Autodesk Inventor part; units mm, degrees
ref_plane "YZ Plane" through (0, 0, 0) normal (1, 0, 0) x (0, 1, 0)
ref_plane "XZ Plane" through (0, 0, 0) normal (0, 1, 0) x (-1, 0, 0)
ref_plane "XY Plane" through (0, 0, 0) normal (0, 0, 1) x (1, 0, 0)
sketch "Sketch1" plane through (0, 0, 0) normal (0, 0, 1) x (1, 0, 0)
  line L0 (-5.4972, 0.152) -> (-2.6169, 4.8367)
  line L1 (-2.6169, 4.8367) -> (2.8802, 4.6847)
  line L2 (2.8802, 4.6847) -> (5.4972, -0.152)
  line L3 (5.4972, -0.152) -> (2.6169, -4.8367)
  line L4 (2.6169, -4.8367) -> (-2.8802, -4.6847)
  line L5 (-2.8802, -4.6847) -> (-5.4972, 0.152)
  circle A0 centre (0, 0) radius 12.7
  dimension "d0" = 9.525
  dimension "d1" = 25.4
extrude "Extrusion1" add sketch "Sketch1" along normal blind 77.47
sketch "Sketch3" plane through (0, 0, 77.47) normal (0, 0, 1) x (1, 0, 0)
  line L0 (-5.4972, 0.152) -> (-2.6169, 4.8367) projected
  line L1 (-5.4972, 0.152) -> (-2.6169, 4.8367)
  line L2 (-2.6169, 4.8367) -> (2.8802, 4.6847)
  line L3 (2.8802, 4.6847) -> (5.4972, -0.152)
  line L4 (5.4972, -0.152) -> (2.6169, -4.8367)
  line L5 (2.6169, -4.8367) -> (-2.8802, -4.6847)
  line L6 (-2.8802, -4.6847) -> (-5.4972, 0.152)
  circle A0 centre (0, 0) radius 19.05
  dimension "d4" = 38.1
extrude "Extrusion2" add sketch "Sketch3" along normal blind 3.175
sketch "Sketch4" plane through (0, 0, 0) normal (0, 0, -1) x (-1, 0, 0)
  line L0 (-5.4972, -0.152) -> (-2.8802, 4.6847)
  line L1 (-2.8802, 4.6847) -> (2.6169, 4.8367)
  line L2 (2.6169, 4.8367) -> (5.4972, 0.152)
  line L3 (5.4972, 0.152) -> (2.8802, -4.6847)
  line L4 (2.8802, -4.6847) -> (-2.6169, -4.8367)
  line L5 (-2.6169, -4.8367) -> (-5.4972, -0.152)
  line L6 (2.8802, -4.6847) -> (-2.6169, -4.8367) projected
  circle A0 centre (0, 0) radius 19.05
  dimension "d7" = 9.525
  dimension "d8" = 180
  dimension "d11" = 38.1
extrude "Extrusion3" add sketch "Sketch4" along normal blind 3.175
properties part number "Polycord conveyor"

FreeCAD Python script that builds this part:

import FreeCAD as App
import Part
import Sketcher
Q = App.Units.Quantity

doc = App.newDocument("Part")
body = doc.addObject("PartDesign::Body", "Body")

# Sketch on XY plane
sketch1 = body.newObject("Sketcher::SketchObject", "Sketch")
sketch1.AttachmentSupport = (doc.getObject("XY_Plane"), [""])
sketch1.MapMode = "FlatFace"
sketch1.addGeometry([
    Part.Circle(App.Vector(0, 0, 0), App.Vector(0, 0, 1), 13),  # 0
    Part.LineSegment(App.Vector(-3, -5, 0), App.Vector(-5, 0, 0)),  # 1
    Part.LineSegment(App.Vector(-5, 0, 0), App.Vector(-3, 5, 0)),  # 2
    Part.LineSegment(App.Vector(-3, 5, 0), App.Vector(3, 5, 0)),  # 3
    Part.LineSegment(App.Vector(3, 5, 0), App.Vector(5, 0, 0)),  # 4
    Part.LineSegment(App.Vector(5, 0, 0), App.Vector(3, -5, 0)),  # 5
    Part.LineSegment(App.Vector(3, -5, 0), App.Vector(-3, -5, 0)),  # 6
], False)
sketch1.addConstraint([
    Sketcher.Constraint("Coincident", 1, 2, 2, 1),
    Sketcher.Constraint("Coincident", 2, 2, 3, 1),
    Sketcher.Constraint("Coincident", 3, 2, 4, 1),
    Sketcher.Constraint("Coincident", 4, 2, 5, 1),
    Sketcher.Constraint("Coincident", 5, 2, 6, 1),
    Sketcher.Constraint("Coincident", 6, 2, 1, 1),
    Sketcher.Constraint("Coincident", 0, 3, -1, 1),
    Sketcher.Constraint("Symmetric", 1, 2, 4, 2, -1, 1),
    Sketcher.Constraint("Symmetric", 2, 2, 5, 2, -1, 1),
    Sketcher.Constraint("Symmetric", 3, 2, 6, 2, -1, 1),
    Sketcher.Constraint("Equal", 1, 2),
    Sketcher.Constraint("Equal", 2, 3),
    Sketcher.Constraint("Diameter", 0, Q("1 in")),
    Sketcher.Constraint("Distance", 1, Q("0.2165 in")),
    Sketcher.Constraint("DistanceX", -1, 1, 3, 2, Q("0.1134 in")),
    Sketcher.Constraint("DistanceX", 1, 2, 2, 2, Q("0.1134 in")),
    Sketcher.Constraint("DistanceY", 4, 2, 2, 2, Q("0.1964 in")),
])
pad1 = body.newObject("PartDesign::Pad", "Pad")
pad1.Profile = sketch1
pad1.Length = Q("3.05 in")

# Sketch on XY plane
sketch2 = body.newObject("Sketcher::SketchObject", "Sketch001")
sketch2.AttachmentSupport = (doc.getObject("XY_Plane"), [""])
sketch2.MapMode = "FlatFace"
sketch2.AttachmentOffset = App.Placement(App.Vector(0, 0, 3.05 * 25.4), App.Rotation())
sketch2.addGeometry([
    Part.Circle(App.Vector(0, 0, 0), App.Vector(0, 0, 1), 19),  # 0
    Part.LineSegment(App.Vector(-3, -5, 0), App.Vector(-5, 0, 0)),  # 1
    Part.LineSegment(App.Vector(-5, 0, 0), App.Vector(-3, 5, 0)),  # 2
    Part.LineSegment(App.Vector(-3, 5, 0), App.Vector(3, 5, 0)),  # 3
    Part.LineSegment(App.Vector(3, 5, 0), App.Vector(5, 0, 0)),  # 4
    Part.LineSegment(App.Vector(5, 0, 0), App.Vector(3, -5, 0)),  # 5
    Part.LineSegment(App.Vector(3, -5, 0), App.Vector(-3, -5, 0)),  # 6
], False)
sketch2.addConstraint([
    Sketcher.Constraint("Coincident", 1, 2, 2, 1),
    Sketcher.Constraint("Coincident", 2, 2, 3, 1),
    Sketcher.Constraint("Coincident", 3, 2, 4, 1),
    Sketcher.Constraint("Coincident", 4, 2, 5, 1),
    Sketcher.Constraint("Coincident", 5, 2, 6, 1),
    Sketcher.Constraint("Coincident", 6, 2, 1, 1),
    Sketcher.Constraint("Coincident", 0, 3, -1, 1),
    Sketcher.Constraint("Symmetric", 1, 2, 4, 2, -1, 1),
    Sketcher.Constraint("Symmetric", 2, 2, 5, 2, -1, 1),
    Sketcher.Constraint("Symmetric", 3, 2, 6, 2, -1, 1),
    Sketcher.Constraint("Equal", 1, 2),
    Sketcher.Constraint("Equal", 2, 3),
    Sketcher.Constraint("Diameter", 0, Q("1.5 in")),
    Sketcher.Constraint("Distance", 1, Q("0.2165 in")),
    Sketcher.Constraint("DistanceX", -1, 1, 3, 2, Q("0.1134 in")),
    Sketcher.Constraint("DistanceX", 1, 2, 2, 2, Q("0.1134 in")),
    Sketcher.Constraint("DistanceY", 4, 2, 2, 2, Q("0.1964 in")),
])
pad2 = body.newObject("PartDesign::Pad", "Pad001")
pad2.Profile = sketch2
pad2.Length = Q("0.125 in")

# Sketch on XY plane
sketch3 = body.newObject("Sketcher::SketchObject", "Sketch002")
sketch3.AttachmentSupport = (doc.getObject("XY_Plane"), [""])
sketch3.MapMode = "FlatFace"
sketch3.addGeometry([
    Part.Circle(App.Vector(0, 0, 0), App.Vector(0, 0, 1), 19),  # 0
    Part.LineSegment(App.Vector(3, -5, 0), App.Vector(5, 0, 0)),  # 1
    Part.LineSegment(App.Vector(5, 0, 0), App.Vector(3, 5, 0)),  # 2
    Part.LineSegment(App.Vector(3, 5, 0), App.Vector(-3, 5, 0)),  # 3
    Part.LineSegment(App.Vector(-3, 5, 0), App.Vector(-5, 0, 0)),  # 4
    Part.LineSegment(App.Vector(-5, 0, 0), App.Vector(-3, -5, 0)),  # 5
    Part.LineSegment(App.Vector(-3, -5, 0), App.Vector(3, -5, 0)),  # 6
], False)
sketch3.addConstraint([
    Sketcher.Constraint("Coincident", 1, 2, 2, 1),
    Sketcher.Constraint("Coincident", 2, 2, 3, 1),
    Sketcher.Constraint("Coincident", 3, 2, 4, 1),
    Sketcher.Constraint("Coincident", 4, 2, 5, 1),
    Sketcher.Constraint("Coincident", 5, 2, 6, 1),
    Sketcher.Constraint("Coincident", 6, 2, 1, 1),
    Sketcher.Constraint("Coincident", 0, 3, -1, 1),
    Sketcher.Constraint("Symmetric", 1, 2, 4, 2, -1, 1),
    Sketcher.Constraint("Symmetric", 2, 2, 5, 2, -1, 1),
    Sketcher.Constraint("Symmetric", 3, 2, 6, 2, -1, 1),
    Sketcher.Constraint("Equal", 1, 2),
    Sketcher.Constraint("Equal", 2, 3),
    Sketcher.Constraint("Diameter", 0, Q("1.5 in")),
    Sketcher.Constraint("Distance", 1, Q("0.2165 in")),
    Sketcher.Constraint("DistanceX", -1, 1, 2, 2, Q("0.1134 in")),
    Sketcher.Constraint("DistanceY", 1, 2, 3, 2, Q("0.1964 in")),
    Sketcher.Constraint("DistanceX", 4, 2, 3, 2, Q("0.1134 in")),
])
pad3 = body.newObject("PartDesign::Pad", "Pad002")
pad3.Profile = sketch3
pad3.Length = Q("0.125 in")
pad3.Reversed = True

doc.recompute()
